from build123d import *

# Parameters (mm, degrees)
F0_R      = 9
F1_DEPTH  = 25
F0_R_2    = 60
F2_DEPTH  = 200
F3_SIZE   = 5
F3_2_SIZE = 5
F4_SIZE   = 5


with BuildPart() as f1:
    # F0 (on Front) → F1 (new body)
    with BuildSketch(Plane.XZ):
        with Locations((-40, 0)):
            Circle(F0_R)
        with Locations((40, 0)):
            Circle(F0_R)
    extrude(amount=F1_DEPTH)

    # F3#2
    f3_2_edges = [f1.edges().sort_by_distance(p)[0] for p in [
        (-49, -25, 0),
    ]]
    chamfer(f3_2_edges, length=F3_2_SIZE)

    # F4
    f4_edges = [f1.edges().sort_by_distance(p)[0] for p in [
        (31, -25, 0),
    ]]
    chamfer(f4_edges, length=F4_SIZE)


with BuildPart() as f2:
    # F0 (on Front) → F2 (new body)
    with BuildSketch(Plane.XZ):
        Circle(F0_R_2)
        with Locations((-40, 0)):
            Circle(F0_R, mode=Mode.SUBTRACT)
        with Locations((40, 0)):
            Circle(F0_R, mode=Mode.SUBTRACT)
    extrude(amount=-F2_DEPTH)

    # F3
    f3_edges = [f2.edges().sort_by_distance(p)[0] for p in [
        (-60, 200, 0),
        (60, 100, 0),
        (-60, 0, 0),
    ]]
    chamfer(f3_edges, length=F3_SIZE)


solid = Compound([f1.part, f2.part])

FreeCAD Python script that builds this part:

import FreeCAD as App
import Part
import Sketcher
from FreeCAD import Vector
Q = App.Units.Quantity


def edges_at(feature, points):
    """Names of the edges that pass closest to the given points."""
    edges = feature.Shape.Edges
    near = lambda p: min(range(len(edges)), key=lambda i: edges[i].distToShape(Part.Vertex(*p))[0])
    return sorted({f"Edge{near(p) + 1}" for p in points})

doc = App.newDocument("Part")
body = doc.addObject("PartDesign::Body", "Body")
body.AllowCompound = True

sketch1 = doc.addObject("Sketcher::SketchObject", "Sketch")
body.addObject(sketch1)
sketch1.AttachmentSupport = (doc.XZ_Plane, [""])
sketch1.MapMode = "FlatFace"
sketch1.addGeometry([
    Part.Circle(Vector(-40, 0, 0), Vector(0, 0, 1), 9),
    Part.Circle(Vector(40, 0, 0), Vector(0, 0, 1), 9),
], False)
sketch1.addConstraint([
    Sketcher.Constraint("Equal", 0, 1),
    Sketcher.Constraint("Symmetric", 0, 3, 1, 3, -1, 1),
    Sketcher.Constraint("PointOnObject", 0, 3, -1),
    Sketcher.Constraint("Diameter", 0, Q("18 mm")),
    Sketcher.Constraint("DistanceX", 0, 3, -1, 1, Q("40 mm")),
])
pad1 = doc.addObject("PartDesign::Pad", "Pad")
body.addObject(pad1)
pad1.Profile = sketch1
pad1.Length = 25
doc.recompute()

chamfer = doc.addObject("PartDesign::Chamfer", "Chamfer")
body.addObject(chamfer)
chamfer.Base = (pad1, edges_at(pad1, [(-49, -25, 0)]))
chamfer.Size = 5
doc.recompute()

chamfer2 = doc.addObject("PartDesign::Chamfer", "Chamfer001")
body.addObject(chamfer2)
chamfer2.Base = (chamfer, edges_at(chamfer, [(31, -25, 0)]))
chamfer2.Size = 5
body2 = doc.addObject("PartDesign::Body", "Body001")

sketch2 = doc.addObject("Sketcher::SketchObject", "Sketch001")
body2.addObject(sketch2)
sketch2.AttachmentSupport = (doc.getObject("XZ_Plane001"), [""])
sketch2.MapMode = "FlatFace"
sketch2.addGeometry([
    Part.Circle(Vector(0, 0, 0), Vector(0, 0, 1), 60),
    Part.Circle(Vector(-40, 0, 0), Vector(0, 0, 1), 9),
    Part.Circle(Vector(40, 0, 0), Vector(0, 0, 1), 9),
], False)
sketch2.addConstraint([
    Sketcher.Constraint("Coincident", 0, 3, -1, 1),
    Sketcher.Constraint("Equal", 1, 2),
    Sketcher.Constraint("Symmetric", 1, 3, 2, 3, -1, 1),
    Sketcher.Constraint("PointOnObject", 1, 3, -1),
    Sketcher.Constraint("Diameter", 0, Q("120 mm")),
    Sketcher.Constraint("Diameter", 1, Q("18 mm")),
    Sketcher.Constraint("DistanceX", 1, 3, -1, 1, Q("40 mm")),
])
pad2 = doc.addObject("PartDesign::Pad", "Pad001")
body2.addObject(pad2)
pad2.Profile = sketch2
pad2.Length = 200
pad2.Reversed = True
doc.recompute()

chamfer3 = doc.addObject("PartDesign::Chamfer", "Chamfer002")
body2.addObject(chamfer3)
chamfer3.Base = (pad2, edges_at(pad2, [(-60, 200, 0), (60, 100, 0), (-60, 0, 0)]))
chamfer3.Size = 5

doc.recompute()
